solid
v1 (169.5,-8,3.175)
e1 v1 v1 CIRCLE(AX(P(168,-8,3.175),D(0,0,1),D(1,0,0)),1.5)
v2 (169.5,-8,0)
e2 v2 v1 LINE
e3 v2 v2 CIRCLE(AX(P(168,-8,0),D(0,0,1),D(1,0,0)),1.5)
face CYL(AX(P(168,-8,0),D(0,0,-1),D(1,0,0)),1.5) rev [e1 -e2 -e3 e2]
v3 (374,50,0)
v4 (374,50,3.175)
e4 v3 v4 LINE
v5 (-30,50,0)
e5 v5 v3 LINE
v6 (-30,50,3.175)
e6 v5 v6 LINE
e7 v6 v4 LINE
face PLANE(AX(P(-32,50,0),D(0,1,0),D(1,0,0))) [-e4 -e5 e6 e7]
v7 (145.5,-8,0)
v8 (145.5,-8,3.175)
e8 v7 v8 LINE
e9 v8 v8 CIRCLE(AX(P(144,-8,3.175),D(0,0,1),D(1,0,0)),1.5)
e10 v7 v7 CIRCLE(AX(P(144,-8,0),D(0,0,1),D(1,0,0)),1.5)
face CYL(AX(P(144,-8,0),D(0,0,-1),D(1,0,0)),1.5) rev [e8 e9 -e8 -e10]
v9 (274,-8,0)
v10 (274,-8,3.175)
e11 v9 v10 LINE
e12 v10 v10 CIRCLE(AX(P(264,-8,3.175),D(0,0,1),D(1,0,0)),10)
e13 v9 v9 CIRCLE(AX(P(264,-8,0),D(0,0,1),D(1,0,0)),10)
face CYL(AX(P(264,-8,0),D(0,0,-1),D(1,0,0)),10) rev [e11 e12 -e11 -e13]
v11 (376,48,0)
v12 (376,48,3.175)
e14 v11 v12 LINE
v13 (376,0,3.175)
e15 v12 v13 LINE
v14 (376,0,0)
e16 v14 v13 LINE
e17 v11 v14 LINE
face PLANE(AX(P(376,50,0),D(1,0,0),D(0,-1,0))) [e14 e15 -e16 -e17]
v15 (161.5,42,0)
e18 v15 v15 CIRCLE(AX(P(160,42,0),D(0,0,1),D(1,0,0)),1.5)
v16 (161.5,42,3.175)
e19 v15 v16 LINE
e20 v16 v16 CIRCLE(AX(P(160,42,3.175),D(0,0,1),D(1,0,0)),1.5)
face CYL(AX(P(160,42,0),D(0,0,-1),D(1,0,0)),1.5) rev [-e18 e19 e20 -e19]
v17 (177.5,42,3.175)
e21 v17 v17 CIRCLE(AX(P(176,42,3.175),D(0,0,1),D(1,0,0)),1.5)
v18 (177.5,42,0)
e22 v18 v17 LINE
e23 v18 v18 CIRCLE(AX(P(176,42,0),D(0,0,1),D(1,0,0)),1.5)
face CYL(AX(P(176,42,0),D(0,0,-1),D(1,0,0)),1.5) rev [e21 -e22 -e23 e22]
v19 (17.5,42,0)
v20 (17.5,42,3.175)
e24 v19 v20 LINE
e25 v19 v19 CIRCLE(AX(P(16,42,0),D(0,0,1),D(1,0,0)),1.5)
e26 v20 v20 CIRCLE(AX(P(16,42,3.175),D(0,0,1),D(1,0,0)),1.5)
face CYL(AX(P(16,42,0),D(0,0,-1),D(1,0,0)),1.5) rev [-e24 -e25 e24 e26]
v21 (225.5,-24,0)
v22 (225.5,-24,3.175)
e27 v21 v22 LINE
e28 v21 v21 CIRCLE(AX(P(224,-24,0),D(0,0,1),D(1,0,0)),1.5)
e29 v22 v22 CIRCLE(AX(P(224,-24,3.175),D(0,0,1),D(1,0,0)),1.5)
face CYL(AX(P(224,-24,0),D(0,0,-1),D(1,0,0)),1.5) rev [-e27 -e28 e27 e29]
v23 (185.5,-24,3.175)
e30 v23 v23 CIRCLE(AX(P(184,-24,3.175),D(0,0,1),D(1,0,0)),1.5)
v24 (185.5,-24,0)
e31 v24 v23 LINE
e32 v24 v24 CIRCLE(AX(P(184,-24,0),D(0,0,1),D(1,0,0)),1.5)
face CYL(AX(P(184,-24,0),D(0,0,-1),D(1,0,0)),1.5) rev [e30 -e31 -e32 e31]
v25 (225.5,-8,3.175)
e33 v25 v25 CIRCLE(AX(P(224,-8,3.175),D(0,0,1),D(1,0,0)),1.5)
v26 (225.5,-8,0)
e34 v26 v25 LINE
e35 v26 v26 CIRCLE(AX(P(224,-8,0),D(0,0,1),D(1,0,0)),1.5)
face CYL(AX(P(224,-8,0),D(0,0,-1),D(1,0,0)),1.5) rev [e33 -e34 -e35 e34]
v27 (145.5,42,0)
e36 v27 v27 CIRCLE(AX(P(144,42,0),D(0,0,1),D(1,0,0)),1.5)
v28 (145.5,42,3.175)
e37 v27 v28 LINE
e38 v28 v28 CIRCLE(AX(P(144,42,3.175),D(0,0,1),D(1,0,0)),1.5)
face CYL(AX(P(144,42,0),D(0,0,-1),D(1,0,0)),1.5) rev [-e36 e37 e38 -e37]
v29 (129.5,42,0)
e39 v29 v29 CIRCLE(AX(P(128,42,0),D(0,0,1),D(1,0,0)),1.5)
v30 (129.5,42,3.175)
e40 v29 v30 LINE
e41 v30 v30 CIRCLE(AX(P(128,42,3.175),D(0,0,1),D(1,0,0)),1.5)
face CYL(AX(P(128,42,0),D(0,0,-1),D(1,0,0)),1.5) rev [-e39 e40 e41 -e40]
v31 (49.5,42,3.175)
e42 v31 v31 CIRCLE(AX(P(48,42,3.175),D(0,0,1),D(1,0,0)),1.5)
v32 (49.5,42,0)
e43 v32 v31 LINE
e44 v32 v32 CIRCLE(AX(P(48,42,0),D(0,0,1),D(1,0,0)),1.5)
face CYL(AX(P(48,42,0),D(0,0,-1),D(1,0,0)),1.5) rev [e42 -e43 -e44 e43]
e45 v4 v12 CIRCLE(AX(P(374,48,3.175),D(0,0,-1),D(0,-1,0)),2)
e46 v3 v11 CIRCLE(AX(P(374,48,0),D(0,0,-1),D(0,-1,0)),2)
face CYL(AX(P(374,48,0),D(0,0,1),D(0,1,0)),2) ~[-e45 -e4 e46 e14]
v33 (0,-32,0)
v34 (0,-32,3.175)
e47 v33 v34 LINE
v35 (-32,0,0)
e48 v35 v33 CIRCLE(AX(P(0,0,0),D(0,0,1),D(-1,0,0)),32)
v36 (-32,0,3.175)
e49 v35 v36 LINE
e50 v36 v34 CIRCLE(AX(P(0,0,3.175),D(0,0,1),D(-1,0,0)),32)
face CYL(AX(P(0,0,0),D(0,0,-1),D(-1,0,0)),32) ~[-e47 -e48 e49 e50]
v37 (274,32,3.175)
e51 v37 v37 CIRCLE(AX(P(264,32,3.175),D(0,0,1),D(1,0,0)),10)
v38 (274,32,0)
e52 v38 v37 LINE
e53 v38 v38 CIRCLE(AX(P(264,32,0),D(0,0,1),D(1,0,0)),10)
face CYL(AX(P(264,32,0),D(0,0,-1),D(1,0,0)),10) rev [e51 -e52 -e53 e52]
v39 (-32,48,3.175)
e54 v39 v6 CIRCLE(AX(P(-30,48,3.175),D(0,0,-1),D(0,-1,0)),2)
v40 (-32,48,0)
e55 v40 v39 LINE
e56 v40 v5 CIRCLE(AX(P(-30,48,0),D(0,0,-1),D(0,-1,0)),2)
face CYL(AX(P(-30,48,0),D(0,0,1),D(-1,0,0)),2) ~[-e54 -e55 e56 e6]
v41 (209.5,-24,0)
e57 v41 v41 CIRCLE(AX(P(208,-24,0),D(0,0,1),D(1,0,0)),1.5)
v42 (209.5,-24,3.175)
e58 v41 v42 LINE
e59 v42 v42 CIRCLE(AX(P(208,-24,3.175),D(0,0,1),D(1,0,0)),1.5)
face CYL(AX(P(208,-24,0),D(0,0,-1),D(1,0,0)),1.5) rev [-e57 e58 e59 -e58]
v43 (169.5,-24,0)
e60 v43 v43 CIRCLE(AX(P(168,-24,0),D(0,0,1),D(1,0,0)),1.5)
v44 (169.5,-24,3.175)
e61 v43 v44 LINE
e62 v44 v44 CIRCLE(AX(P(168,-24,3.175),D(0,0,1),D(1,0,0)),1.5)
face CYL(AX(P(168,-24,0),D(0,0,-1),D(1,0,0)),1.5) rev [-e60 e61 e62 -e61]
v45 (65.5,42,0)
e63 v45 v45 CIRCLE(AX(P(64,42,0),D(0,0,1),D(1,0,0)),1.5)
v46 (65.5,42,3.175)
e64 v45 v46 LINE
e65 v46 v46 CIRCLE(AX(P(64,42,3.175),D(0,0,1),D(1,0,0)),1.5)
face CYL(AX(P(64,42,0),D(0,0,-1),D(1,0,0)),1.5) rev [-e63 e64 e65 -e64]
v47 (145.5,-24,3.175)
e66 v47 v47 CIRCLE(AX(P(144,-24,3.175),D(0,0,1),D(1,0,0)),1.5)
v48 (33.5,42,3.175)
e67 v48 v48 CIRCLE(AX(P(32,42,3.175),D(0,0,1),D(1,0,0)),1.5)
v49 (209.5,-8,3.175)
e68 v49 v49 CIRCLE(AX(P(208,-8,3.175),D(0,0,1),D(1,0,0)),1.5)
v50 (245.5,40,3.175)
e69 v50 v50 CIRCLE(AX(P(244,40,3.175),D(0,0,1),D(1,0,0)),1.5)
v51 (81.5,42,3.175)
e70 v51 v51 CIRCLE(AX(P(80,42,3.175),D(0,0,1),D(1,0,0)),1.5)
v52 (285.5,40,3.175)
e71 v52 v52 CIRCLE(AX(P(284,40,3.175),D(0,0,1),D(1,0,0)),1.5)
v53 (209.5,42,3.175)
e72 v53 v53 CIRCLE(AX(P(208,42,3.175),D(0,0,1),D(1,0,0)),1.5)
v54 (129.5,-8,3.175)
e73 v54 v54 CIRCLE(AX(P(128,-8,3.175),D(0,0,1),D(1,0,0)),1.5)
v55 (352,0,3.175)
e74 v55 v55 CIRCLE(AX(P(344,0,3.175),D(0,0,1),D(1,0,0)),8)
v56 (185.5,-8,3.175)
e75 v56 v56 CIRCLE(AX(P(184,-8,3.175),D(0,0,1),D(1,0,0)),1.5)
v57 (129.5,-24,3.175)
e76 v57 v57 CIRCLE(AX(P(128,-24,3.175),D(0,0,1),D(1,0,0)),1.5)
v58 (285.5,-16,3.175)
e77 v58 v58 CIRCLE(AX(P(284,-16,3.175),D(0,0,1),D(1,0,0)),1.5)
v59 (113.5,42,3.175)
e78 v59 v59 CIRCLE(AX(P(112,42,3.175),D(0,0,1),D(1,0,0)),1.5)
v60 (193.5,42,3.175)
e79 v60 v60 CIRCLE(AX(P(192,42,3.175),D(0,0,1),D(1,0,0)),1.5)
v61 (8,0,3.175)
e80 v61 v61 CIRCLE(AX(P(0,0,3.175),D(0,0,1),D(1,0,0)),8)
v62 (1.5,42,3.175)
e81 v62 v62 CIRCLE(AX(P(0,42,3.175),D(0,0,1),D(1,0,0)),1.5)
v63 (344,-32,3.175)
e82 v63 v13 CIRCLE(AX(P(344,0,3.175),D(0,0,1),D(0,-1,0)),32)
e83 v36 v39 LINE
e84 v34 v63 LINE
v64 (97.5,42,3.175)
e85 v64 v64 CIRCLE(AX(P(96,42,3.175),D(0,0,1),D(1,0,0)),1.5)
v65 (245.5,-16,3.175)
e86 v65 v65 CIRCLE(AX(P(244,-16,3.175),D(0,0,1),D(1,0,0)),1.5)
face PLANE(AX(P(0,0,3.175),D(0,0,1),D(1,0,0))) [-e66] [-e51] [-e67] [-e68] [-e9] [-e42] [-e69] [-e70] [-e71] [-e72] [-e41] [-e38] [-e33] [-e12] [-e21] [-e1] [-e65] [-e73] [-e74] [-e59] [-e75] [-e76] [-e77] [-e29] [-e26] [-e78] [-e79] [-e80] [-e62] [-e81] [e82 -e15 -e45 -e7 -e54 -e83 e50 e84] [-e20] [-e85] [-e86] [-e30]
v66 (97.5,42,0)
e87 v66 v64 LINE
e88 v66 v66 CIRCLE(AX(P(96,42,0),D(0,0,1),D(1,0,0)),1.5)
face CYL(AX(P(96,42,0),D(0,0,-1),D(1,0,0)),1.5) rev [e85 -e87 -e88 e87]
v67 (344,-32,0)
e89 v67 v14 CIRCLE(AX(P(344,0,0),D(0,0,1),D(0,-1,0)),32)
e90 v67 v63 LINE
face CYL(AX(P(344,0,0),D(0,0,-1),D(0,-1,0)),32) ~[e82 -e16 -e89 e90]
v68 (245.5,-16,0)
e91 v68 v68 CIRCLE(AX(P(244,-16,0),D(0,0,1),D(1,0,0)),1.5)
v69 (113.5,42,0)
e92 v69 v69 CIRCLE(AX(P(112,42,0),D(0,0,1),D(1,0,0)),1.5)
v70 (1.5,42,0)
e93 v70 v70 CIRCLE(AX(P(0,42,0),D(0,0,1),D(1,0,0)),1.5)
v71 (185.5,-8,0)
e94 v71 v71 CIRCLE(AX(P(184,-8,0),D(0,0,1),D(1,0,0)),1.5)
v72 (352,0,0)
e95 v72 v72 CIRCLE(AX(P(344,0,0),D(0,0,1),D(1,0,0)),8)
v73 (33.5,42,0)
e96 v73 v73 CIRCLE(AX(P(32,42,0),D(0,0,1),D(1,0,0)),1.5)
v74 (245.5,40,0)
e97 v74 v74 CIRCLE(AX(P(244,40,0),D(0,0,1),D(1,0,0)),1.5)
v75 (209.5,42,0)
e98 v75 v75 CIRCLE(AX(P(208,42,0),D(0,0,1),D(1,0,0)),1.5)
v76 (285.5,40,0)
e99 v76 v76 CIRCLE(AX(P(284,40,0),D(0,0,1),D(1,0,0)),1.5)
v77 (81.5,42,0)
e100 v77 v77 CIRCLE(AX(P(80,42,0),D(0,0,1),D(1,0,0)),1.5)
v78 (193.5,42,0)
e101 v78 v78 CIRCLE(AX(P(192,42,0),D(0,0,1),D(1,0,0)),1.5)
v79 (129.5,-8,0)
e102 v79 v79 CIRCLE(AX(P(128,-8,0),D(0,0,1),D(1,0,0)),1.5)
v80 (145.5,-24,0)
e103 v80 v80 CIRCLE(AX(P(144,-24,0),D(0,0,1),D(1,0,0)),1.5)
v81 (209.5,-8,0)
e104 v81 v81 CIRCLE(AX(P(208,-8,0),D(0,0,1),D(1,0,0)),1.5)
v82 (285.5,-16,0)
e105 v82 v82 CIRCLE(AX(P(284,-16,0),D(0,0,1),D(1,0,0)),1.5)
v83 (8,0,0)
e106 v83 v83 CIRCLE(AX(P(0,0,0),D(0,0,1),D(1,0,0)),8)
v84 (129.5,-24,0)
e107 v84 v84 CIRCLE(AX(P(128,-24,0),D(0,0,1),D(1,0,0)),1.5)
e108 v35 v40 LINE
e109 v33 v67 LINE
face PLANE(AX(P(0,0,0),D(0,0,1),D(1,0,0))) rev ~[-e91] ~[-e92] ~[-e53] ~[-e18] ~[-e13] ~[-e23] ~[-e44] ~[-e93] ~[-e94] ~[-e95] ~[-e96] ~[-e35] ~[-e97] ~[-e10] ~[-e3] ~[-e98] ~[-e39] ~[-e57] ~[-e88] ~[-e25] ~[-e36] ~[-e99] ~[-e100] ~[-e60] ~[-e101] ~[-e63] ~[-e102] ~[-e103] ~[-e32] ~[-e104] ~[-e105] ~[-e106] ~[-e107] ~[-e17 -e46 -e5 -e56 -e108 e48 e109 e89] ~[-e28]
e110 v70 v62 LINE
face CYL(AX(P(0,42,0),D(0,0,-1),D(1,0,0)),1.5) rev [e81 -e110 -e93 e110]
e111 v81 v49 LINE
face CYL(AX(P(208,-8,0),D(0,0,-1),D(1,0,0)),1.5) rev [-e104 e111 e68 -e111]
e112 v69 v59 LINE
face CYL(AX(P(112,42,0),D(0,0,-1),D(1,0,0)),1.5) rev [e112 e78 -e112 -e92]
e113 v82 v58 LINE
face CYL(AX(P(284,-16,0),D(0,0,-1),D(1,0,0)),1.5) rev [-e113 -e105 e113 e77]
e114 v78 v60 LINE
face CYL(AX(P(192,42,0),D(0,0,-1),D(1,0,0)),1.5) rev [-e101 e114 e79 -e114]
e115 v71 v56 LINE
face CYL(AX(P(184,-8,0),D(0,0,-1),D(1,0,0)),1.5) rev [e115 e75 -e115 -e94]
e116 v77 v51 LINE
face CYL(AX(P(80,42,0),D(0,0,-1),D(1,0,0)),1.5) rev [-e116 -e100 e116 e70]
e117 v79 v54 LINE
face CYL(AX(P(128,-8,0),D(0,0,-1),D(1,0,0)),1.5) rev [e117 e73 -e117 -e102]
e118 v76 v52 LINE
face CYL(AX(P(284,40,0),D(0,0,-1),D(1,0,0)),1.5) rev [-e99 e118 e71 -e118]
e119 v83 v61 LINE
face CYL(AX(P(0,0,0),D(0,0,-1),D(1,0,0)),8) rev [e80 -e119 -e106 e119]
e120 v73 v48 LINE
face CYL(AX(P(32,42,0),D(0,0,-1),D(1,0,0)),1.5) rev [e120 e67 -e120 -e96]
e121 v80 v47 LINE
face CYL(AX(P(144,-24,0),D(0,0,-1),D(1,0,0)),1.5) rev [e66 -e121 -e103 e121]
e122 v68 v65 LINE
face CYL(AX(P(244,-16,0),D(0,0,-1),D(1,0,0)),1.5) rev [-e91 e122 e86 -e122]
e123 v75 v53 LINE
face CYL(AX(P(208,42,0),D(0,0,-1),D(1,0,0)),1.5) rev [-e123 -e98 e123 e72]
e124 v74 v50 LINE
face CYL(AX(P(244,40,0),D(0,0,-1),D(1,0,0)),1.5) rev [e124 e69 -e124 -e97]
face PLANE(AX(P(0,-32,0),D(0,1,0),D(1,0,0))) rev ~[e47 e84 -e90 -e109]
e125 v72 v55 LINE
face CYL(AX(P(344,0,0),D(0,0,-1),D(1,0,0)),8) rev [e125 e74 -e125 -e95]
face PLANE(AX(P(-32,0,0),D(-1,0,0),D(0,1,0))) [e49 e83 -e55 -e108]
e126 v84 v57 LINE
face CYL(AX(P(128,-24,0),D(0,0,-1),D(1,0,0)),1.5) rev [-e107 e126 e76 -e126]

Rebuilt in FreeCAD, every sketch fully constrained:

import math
import FreeCAD as App
import Part
import Sketcher


def edges_at(feature, points):
    """Names of the edges that pass closest to the given points."""
    edges = feature.Shape.Edges
    near = lambda p: min(range(len(edges)), key=lambda i: edges[i].distToShape(Part.Vertex(*p))[0])
    return sorted({f"Edge{near(p) + 1}" for p in points})

doc = App.newDocument("Part")
body = doc.addObject("PartDesign::Body", "Body")

# Sketch on XY plane
sketch1 = body.newObject("Sketcher::SketchObject", "Sketch")
sketch1.AttachmentSupport = (doc.getObject("XY_Plane"), [""])
sketch1.MapMode = "FlatFace"
sketch1.addGeometry(Part.LineSegment(App.Vector(-32, 50, 0), App.Vector(-32, 0, 0)), False)
sketch1.addGeometry(Part.ArcOfCircle(Part.Circle(App.Vector(0, 0, 0), App.Vector(0, 0, 1), 32), math.radians(180), math.radians(270)), False)
sketch1.addGeometry(Part.LineSegment(App.Vector(0, -32, 0), App.Vector(344, -32, 0)), False)
sketch1.addGeometry(Part.ArcOfCircle(Part.Circle(App.Vector(344, 0, 0), App.Vector(0, 0, 1), 32), math.radians(-90), math.radians(0)), False)
sketch1.addGeometry(Part.LineSegment(App.Vector(376, 0, 0), App.Vector(376, 50, 0)), False)
sketch1.addGeometry(Part.LineSegment(App.Vector(376, 50, 0), App.Vector(-32, 50, 0)), False)
sketch1.addGeometry(Part.Circle(App.Vector(128, -24, 0), App.Vector(0, 0, 1), 1.5), False)
sketch1.addGeometry(Part.Circle(App.Vector(144, -24, 0), App.Vector(0, 0, 1), 1.5), False)
sketch1.addGeometry(Part.Circle(App.Vector(168, -24, 0), App.Vector(0, 0, 1), 1.5), False)
sketch1.addGeometry(Part.Circle(App.Vector(0, 0, 0), App.Vector(0, 0, 1), 8), False)
sketch1.addGeometry(Part.Circle(App.Vector(128, -8, 0), App.Vector(0, 0, 1), 1.5), False)
sketch1.addGeometry(Part.Circle(App.Vector(144, -8, 0), App.Vector(0, 0, 1), 1.5), False)
sketch1.addGeometry(Part.Circle(App.Vector(168, -8, 0), App.Vector(0, 0, 1), 1.5), False)
sketch1.addGeometry(Part.Circle(App.Vector(184, -24, 0), App.Vector(0, 0, 1), 1.5), False)
sketch1.addGeometry(Part.Circle(App.Vector(208, -24, 0), App.Vector(0, 0, 1), 1.5), False)
sketch1.addGeometry(Part.Circle(App.Vector(224, -24, 0), App.Vector(0, 0, 1), 1.5), False)
sketch1.addGeometry(Part.Circle(App.Vector(244, -16, 0), App.Vector(0, 0, 1), 1.5), False)
sketch1.addGeometry(Part.Circle(App.Vector(284, -16, 0), App.Vector(0, 0, 1), 1.5), False)
sketch1.addGeometry(Part.Circle(App.Vector(184, -8, 0), App.Vector(0, 0, 1), 1.5), False)
sketch1.addGeometry(Part.Circle(App.Vector(208, -8, 0), App.Vector(0, 0, 1), 1.5), False)
sketch1.addGeometry(Part.Circle(App.Vector(224, -8, 0), App.Vector(0, 0, 1), 1.5), False)
sketch1.addGeometry(Part.Circle(App.Vector(264, -8, 0), App.Vector(0, 0, 1), 10), False)
sketch1.addGeometry(Part.Circle(App.Vector(344, 0, 0), App.Vector(0, 0, 1), 8), False)
sketch1.addGeometry(Part.Circle(App.Vector(0, 42, 0), App.Vector(0, 0, 1), 1.5), False)
sketch1.addGeometry(Part.Circle(App.Vector(16, 42, 0), App.Vector(0, 0, 1), 1.5), False)
sketch1.addGeometry(Part.Circle(App.Vector(32, 42, 0), App.Vector(0, 0, 1), 1.5), False)
sketch1.addGeometry(Part.Circle(App.Vector(48, 42, 0), App.Vector(0, 0, 1), 1.5), False)
sketch1.addGeometry(Part.Circle(App.Vector(64, 42, 0), App.Vector(0, 0, 1), 1.5), False)
sketch1.addGeometry(Part.Circle(App.Vector(80, 42, 0), App.Vector(0, 0, 1), 1.5), False)
sketch1.addGeometry(Part.Circle(App.Vector(96, 42, 0), App.Vector(0, 0, 1), 1.5), False)
sketch1.addGeometry(Part.Circle(App.Vector(112, 42, 0), App.Vector(0, 0, 1), 1.5), False)
sketch1.addGeometry(Part.Circle(App.Vector(128, 42, 0), App.Vector(0, 0, 1), 1.5), False)
sketch1.addGeometry(Part.Circle(App.Vector(144, 42, 0), App.Vector(0, 0, 1), 1.5), False)
sketch1.addGeometry(Part.Circle(App.Vector(160, 42, 0), App.Vector(0, 0, 1), 1.5), False)
sketch1.addGeometry(Part.Circle(App.Vector(264, 32, 0), App.Vector(0, 0, 1), 10), False)
sketch1.addGeometry(Part.Circle(App.Vector(176, 42, 0), App.Vector(0, 0, 1), 1.5), False)
sketch1.addGeometry(Part.Circle(App.Vector(192, 42, 0), App.Vector(0, 0, 1), 1.5), False)
sketch1.addGeometry(Part.Circle(App.Vector(208, 42, 0), App.Vector(0, 0, 1), 1.5), False)
sketch1.addGeometry(Part.Circle(App.Vector(244, 40, 0), App.Vector(0, 0, 1), 1.5), False)
sketch1.addGeometry(Part.Circle(App.Vector(284, 40, 0), App.Vector(0, 0, 1), 1.5), False)
sketch1.addConstraint(Sketcher.Constraint("Tangent", 0, 2, 1, 1))
sketch1.addConstraint(Sketcher.Constraint("Tangent", 1, 2, 2, 1))
sketch1.addConstraint(Sketcher.Constraint("Tangent", 2, 2, 3, 1))
sketch1.addConstraint(Sketcher.Constraint("Tangent", 3, 2, 4, 1))
sketch1.addConstraint(Sketcher.Constraint("Coincident", 4, 2, 5, 1))
sketch1.addConstraint(Sketcher.Constraint("Coincident", 5, 2, 0, 1))
sketch1.addConstraint(Sketcher.Constraint("Vertical", 0))
sketch1.addConstraint(Sketcher.Constraint("Horizontal", 2))
sketch1.addConstraint(Sketcher.Constraint("Vertical", 4))
sketch1.addConstraint(Sketcher.Constraint("Horizontal", 5))
sketch1.addConstraint(Sketcher.Constraint("Coincident", 1, 3, -1, 1))
sketch1.addConstraint(Sketcher.Constraint("Coincident", 9, 3, -1, 1))
sketch1.addConstraint(Sketcher.Constraint("Coincident", 22, 3, 3, 3))
sketch1.addConstraint(Sketcher.Constraint("Equal", 1, 3))
sketch1.addConstraint(Sketcher.Constraint("Equal", 6, 7))
sketch1.addConstraint(Sketcher.Constraint("Equal", 7, 8))
sketch1.addConstraint(Sketcher.Constraint("Equal", 8, 10))
sketch1.addConstraint(Sketcher.Constraint("Equal", 10, 11))
sketch1.addConstraint(Sketcher.Constraint("Equal", 11, 12))
sketch1.addConstraint(Sketcher.Constraint("Equal", 12, 13))
sketch1.addConstraint(Sketcher.Constraint("Equal", 13, 14))
sketch1.addConstraint(Sketcher.Constraint("Equal", 14, 15))
sketch1.addConstraint(Sketcher.Constraint("Equal", 15, 16))
sketch1.addConstraint(Sketcher.Constraint("Equal", 16, 17))
sketch1.addConstraint(Sketcher.Constraint("Equal", 17, 18))
sketch1.addConstraint(Sketcher.Constraint("Equal", 18, 19))
sketch1.addConstraint(Sketcher.Constraint("Equal", 19, 20))
sketch1.addConstraint(Sketcher.Constraint("Equal", 9, 22))
sketch1.addConstraint(Sketcher.Constraint("Equal", 20, 23))
sketch1.addConstraint(Sketcher.Constraint("Equal", 23, 24))
sketch1.addConstraint(Sketcher.Constraint("Equal", 24, 25))
sketch1.addConstraint(Sketcher.Constraint("Equal", 25, 26))
sketch1.addConstraint(Sketcher.Constraint("Equal", 26, 27))
sketch1.addConstraint(Sketcher.Constraint("Equal", 27, 28))
sketch1.addConstraint(Sketcher.Constraint("Equal", 28, 29))
sketch1.addConstraint(Sketcher.Constraint("Equal", 29, 30))
sketch1.addConstraint(Sketcher.Constraint("Equal", 30, 31))
sketch1.addConstraint(Sketcher.Constraint("Equal", 31, 32))
sketch1.addConstraint(Sketcher.Constraint("Equal", 32, 33))
sketch1.addConstraint(Sketcher.Constraint("Equal", 21, 34))
sketch1.addConstraint(Sketcher.Constraint("Equal", 33, 35))
sketch1.addConstraint(Sketcher.Constraint("Equal", 35, 36))
sketch1.addConstraint(Sketcher.Constraint("Equal", 36, 37))
sketch1.addConstraint(Sketcher.Constraint("Equal", 37, 38))
sketch1.addConstraint(Sketcher.Constraint("Equal", 38, 39))
sketch1.addConstraint(Sketcher.Constraint("PointOnObject", 23, 3, -2))
sketch1.addConstraint(Sketcher.Constraint("Horizontal", 6, 3, 7, 3))
sketch1.addConstraint(Sketcher.Constraint("Horizontal", 7, 3, 8, 3))
sketch1.addConstraint(Sketcher.Constraint("Horizontal", 10, 3, 11, 3))
sketch1.addConstraint(Sketcher.Constraint("Horizontal", 11, 3, 12, 3))
sketch1.addConstraint(Sketcher.Constraint("Horizontal", 8, 3, 13, 3))
sketch1.addConstraint(Sketcher.Constraint("Horizontal", 13, 3, 14, 3))
sketch1.addConstraint(Sketcher.Constraint("Horizontal", 14, 3, 15, 3))
sketch1.addConstraint(Sketcher.Constraint("Horizontal", 16, 3, 17, 3))
sketch1.addConstraint(Sketcher.Constraint("Horizontal", 12, 3, 18, 3))
sketch1.addConstraint(Sketcher.Constraint("Horizontal", 18, 3, 19, 3))
sketch1.addConstraint(Sketcher.Constraint("Horizontal", 19, 3, 20, 3))
sketch1.addConstraint(Sketcher.Constraint("Horizontal", 20, 3, 21, 3))
sketch1.addConstraint(Sketcher.Constraint("Horizontal", 23, 3, 24, 3))
sketch1.addConstraint(Sketcher.Constraint("Horizontal", 24, 3, 25, 3))
sketch1.addConstraint(Sketcher.Constraint("Horizontal", 25, 3, 26, 3))
sketch1.addConstraint(Sketcher.Constraint("Horizontal", 26, 3, 27, 3))
sketch1.addConstraint(Sketcher.Constraint("Horizontal", 27, 3, 28, 3))
sketch1.addConstraint(Sketcher.Constraint("Horizontal", 28, 3, 29, 3))
sketch1.addConstraint(Sketcher.Constraint("Horizontal", 29, 3, 30, 3))
sketch1.addConstraint(Sketcher.Constraint("Horizontal", 30, 3, 31, 3))
sketch1.addConstraint(Sketcher.Constraint("Horizontal", 31, 3, 32, 3))
sketch1.addConstraint(Sketcher.Constraint("Horizontal", 32, 3, 33, 3))
sketch1.addConstraint(Sketcher.Constraint("Horizontal", 33, 3, 35, 3))
sketch1.addConstraint(Sketcher.Constraint("Horizontal", 35, 3, 36, 3))
sketch1.addConstraint(Sketcher.Constraint("Horizontal", 36, 3, 37, 3))
sketch1.addConstraint(Sketcher.Constraint("Horizontal", 38, 3, 39, 3))
sketch1.addConstraint(Sketcher.Constraint("Vertical", 6, 3, 10, 3))
sketch1.addConstraint(Sketcher.Constraint("Vertical", 7, 3, 11, 3))
sketch1.addConstraint(Sketcher.Constraint("Vertical", 8, 3, 12, 3))
sketch1.addConstraint(Sketcher.Constraint("Vertical", 13, 3, 18, 3))
sketch1.addConstraint(Sketcher.Constraint("Vertical", 14, 3, 19, 3))
sketch1.addConstraint(Sketcher.Constraint("Vertical", 15, 3, 20, 3))
sketch1.addConstraint(Sketcher.Constraint("Vertical", 10, 3, 31, 3))
sketch1.addConstraint(Sketcher.Constraint("Vertical", 11, 3, 32, 3))
sketch1.addConstraint(Sketcher.Constraint("Vertical", 21, 3, 34, 3))
sketch1.addConstraint(Sketcher.Constraint("Vertical", 19, 3, 37, 3))
sketch1.addConstraint(Sketcher.Constraint("Vertical", 16, 3, 38, 3))
sketch1.addConstraint(Sketcher.Constraint("Vertical", 17, 3, 39, 3))
sketch1.addConstraint(Sketcher.Constraint("Diameter", 6, 3.0))
sketch1.addConstraint(Sketcher.Constraint("Diameter", 9, 16.0))
sketch1.addConstraint(Sketcher.Constraint("Diameter", 21, 20.0))
sketch1.addConstraint(Sketcher.Constraint("Radius", 1, 32.0))
sketch1.addConstraint(Sketcher.Constraint("DistanceX", 2, 1, 2, 2, 344.0))
sketch1.addConstraint(Sketcher.Constraint("DistanceY", 0, 2, 0, 1, 50.0))
sketch1.addConstraint(Sketcher.Constraint("DistanceX", -1, 1, 6, 3, 128.0))
sketch1.addConstraint(Sketcher.Constraint("DistanceY", 10, 3, -1, 1, 8.0))
sketch1.addConstraint(Sketcher.Constraint("DistanceY", 16, 3, -1, 1, 16.0))
sketch1.addConstraint(Sketcher.Constraint("DistanceX", -1, 1, 24, 3, 16.0))
sketch1.addConstraint(Sketcher.Constraint("DistanceX", -1, 1, 25, 3, 32.0))
sketch1.addConstraint(Sketcher.Constraint("DistanceX", -1, 1, 28, 3, 80.0))
sketch1.addConstraint(Sketcher.Constraint("DistanceY", -1, 1, 34, 3, 32.0))
sketch1.addConstraint(Sketcher.Constraint("DistanceY", -1, 1, 38, 3, 40.0))
sketch1.addConstraint(Sketcher.Constraint("DistanceX", 6, 3, 7, 3, 16.0))
sketch1.addConstraint(Sketcher.Constraint("DistanceX", 6, 3, 8, 3, 40.0))
sketch1.addConstraint(Sketcher.Constraint("DistanceY", 6, 3, 10, 3, 16.0))
sketch1.addConstraint(Sketcher.Constraint("DistanceX", 8, 3, 13, 3, 16.0))
sketch1.addConstraint(Sketcher.Constraint("DistanceX", 8, 3, 14, 3, 40.0))
sketch1.addConstraint(Sketcher.Constraint("DistanceX", 14, 3, 15, 3, 16.0))
sketch1.addConstraint(Sketcher.Constraint("DistanceX", 15, 3, 16, 3, 20.0))
sketch1.addConstraint(Sketcher.Constraint("DistanceX", 16, 3, 17, 3, 40.0))
sketch1.addConstraint(Sketcher.Constraint("DistanceX", 16, 3, 21, 3, 20.0))
sketch1.addConstraint(Sketcher.Constraint("DistanceY", 10, 3, 23, 3, 50.0))
sketch1.addConstraint(Sketcher.Constraint("DistanceX", 25, 3, 26, 3, 16.0))
sketch1.addConstraint(Sketcher.Constraint("DistanceX", 26, 3, 27, 3, 16.0))
sketch1.addConstraint(Sketcher.Constraint("DistanceX", 28, 3, 29, 3, 16.0))
sketch1.addConstraint(Sketcher.Constraint("DistanceX", 29, 3, 30, 3, 16.0))
sketch1.addConstraint(Sketcher.Constraint("DistanceX", 32, 3, 33, 3, 16.0))
sketch1.addConstraint(Sketcher.Constraint("DistanceX", 33, 3, 35, 3, 16.0))
sketch1.addConstraint(Sketcher.Constraint("DistanceX", 35, 3, 36, 3, 16.0))
pad1 = body.newObject("PartDesign::Pad", "Pad")
pad1.Profile = sketch1
pad1.Length = 3.175
doc.recompute()

fillet = body.newObject("PartDesign::Fillet", "Fillet")
fillet.Base = (pad1, edges_at(pad1, [(376, 50, 1.587), (-32, 50, 1.587)]))
fillet.Radius = 2

doc.recompute()
